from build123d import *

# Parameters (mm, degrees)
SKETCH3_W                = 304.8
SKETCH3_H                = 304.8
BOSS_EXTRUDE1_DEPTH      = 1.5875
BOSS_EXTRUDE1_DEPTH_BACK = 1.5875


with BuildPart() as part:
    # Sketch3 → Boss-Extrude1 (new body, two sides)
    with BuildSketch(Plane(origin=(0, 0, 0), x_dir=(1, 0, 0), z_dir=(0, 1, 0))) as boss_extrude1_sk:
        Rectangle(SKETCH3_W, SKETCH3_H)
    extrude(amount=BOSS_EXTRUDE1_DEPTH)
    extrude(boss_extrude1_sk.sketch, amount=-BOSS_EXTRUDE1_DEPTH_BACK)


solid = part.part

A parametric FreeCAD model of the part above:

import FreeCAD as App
import Part
import Sketcher
from FreeCAD import Vector
Q = App.Units.Quantity

doc = App.newDocument("Part")
body = doc.addObject("PartDesign::Body", "Body")

# Sketch on XZ plane
sketch1 = body.newObject("Sketcher::SketchObject", "Sketch")
sketch1.AttachmentSupport = (doc.getObject("XZ_Plane"), [""])
sketch1.MapMode = "FlatFace"
sketch1.addGeometry([
    Part.LineSegment(Vector(-152.4, -152.4, 0), Vector(-152.4, 152.4, 0)),
    Part.LineSegment(Vector(-152.4, 152.4, 0), Vector(152.4, 152.4, 0)),
    Part.LineSegment(Vector(152.4, 152.4, 0), Vector(152.4, -152.4, 0)),
    Part.LineSegment(Vector(152.4, -152.4, 0), Vector(-152.4, -152.4, 0)),
], False)
sketch1.addConstraint([
    Sketcher.Constraint("Coincident", 0, 2, 1, 1),
    Sketcher.Constraint("Coincident", 1, 2, 2, 1),
    Sketcher.Constraint("Coincident", 2, 2, 3, 1),
    Sketcher.Constraint("Coincident", 3, 2, 0, 1),
    Sketcher.Constraint("Vertical", 0),
    Sketcher.Constraint("Horizontal", 1),
    Sketcher.Constraint("Vertical", 2),
    Sketcher.Constraint("Horizontal", 3),
    Sketcher.Constraint("Symmetric", 0, 2, 2, 2, -1, 1),
    Sketcher.Constraint("Equal", 3, 0),
    Sketcher.Constraint("DistanceX", 1, 1, 1, 2, Q("12 in")),
])
pad1 = body.newObject("PartDesign::Pad", "Pad")
pad1.Profile = sketch1
pad1.Type = "TwoLengths"
pad1.Length = Q("0.0625 in")
pad1.Length2 = Q("0.0625 in")
pad1.Reversed = True

doc.recompute()
